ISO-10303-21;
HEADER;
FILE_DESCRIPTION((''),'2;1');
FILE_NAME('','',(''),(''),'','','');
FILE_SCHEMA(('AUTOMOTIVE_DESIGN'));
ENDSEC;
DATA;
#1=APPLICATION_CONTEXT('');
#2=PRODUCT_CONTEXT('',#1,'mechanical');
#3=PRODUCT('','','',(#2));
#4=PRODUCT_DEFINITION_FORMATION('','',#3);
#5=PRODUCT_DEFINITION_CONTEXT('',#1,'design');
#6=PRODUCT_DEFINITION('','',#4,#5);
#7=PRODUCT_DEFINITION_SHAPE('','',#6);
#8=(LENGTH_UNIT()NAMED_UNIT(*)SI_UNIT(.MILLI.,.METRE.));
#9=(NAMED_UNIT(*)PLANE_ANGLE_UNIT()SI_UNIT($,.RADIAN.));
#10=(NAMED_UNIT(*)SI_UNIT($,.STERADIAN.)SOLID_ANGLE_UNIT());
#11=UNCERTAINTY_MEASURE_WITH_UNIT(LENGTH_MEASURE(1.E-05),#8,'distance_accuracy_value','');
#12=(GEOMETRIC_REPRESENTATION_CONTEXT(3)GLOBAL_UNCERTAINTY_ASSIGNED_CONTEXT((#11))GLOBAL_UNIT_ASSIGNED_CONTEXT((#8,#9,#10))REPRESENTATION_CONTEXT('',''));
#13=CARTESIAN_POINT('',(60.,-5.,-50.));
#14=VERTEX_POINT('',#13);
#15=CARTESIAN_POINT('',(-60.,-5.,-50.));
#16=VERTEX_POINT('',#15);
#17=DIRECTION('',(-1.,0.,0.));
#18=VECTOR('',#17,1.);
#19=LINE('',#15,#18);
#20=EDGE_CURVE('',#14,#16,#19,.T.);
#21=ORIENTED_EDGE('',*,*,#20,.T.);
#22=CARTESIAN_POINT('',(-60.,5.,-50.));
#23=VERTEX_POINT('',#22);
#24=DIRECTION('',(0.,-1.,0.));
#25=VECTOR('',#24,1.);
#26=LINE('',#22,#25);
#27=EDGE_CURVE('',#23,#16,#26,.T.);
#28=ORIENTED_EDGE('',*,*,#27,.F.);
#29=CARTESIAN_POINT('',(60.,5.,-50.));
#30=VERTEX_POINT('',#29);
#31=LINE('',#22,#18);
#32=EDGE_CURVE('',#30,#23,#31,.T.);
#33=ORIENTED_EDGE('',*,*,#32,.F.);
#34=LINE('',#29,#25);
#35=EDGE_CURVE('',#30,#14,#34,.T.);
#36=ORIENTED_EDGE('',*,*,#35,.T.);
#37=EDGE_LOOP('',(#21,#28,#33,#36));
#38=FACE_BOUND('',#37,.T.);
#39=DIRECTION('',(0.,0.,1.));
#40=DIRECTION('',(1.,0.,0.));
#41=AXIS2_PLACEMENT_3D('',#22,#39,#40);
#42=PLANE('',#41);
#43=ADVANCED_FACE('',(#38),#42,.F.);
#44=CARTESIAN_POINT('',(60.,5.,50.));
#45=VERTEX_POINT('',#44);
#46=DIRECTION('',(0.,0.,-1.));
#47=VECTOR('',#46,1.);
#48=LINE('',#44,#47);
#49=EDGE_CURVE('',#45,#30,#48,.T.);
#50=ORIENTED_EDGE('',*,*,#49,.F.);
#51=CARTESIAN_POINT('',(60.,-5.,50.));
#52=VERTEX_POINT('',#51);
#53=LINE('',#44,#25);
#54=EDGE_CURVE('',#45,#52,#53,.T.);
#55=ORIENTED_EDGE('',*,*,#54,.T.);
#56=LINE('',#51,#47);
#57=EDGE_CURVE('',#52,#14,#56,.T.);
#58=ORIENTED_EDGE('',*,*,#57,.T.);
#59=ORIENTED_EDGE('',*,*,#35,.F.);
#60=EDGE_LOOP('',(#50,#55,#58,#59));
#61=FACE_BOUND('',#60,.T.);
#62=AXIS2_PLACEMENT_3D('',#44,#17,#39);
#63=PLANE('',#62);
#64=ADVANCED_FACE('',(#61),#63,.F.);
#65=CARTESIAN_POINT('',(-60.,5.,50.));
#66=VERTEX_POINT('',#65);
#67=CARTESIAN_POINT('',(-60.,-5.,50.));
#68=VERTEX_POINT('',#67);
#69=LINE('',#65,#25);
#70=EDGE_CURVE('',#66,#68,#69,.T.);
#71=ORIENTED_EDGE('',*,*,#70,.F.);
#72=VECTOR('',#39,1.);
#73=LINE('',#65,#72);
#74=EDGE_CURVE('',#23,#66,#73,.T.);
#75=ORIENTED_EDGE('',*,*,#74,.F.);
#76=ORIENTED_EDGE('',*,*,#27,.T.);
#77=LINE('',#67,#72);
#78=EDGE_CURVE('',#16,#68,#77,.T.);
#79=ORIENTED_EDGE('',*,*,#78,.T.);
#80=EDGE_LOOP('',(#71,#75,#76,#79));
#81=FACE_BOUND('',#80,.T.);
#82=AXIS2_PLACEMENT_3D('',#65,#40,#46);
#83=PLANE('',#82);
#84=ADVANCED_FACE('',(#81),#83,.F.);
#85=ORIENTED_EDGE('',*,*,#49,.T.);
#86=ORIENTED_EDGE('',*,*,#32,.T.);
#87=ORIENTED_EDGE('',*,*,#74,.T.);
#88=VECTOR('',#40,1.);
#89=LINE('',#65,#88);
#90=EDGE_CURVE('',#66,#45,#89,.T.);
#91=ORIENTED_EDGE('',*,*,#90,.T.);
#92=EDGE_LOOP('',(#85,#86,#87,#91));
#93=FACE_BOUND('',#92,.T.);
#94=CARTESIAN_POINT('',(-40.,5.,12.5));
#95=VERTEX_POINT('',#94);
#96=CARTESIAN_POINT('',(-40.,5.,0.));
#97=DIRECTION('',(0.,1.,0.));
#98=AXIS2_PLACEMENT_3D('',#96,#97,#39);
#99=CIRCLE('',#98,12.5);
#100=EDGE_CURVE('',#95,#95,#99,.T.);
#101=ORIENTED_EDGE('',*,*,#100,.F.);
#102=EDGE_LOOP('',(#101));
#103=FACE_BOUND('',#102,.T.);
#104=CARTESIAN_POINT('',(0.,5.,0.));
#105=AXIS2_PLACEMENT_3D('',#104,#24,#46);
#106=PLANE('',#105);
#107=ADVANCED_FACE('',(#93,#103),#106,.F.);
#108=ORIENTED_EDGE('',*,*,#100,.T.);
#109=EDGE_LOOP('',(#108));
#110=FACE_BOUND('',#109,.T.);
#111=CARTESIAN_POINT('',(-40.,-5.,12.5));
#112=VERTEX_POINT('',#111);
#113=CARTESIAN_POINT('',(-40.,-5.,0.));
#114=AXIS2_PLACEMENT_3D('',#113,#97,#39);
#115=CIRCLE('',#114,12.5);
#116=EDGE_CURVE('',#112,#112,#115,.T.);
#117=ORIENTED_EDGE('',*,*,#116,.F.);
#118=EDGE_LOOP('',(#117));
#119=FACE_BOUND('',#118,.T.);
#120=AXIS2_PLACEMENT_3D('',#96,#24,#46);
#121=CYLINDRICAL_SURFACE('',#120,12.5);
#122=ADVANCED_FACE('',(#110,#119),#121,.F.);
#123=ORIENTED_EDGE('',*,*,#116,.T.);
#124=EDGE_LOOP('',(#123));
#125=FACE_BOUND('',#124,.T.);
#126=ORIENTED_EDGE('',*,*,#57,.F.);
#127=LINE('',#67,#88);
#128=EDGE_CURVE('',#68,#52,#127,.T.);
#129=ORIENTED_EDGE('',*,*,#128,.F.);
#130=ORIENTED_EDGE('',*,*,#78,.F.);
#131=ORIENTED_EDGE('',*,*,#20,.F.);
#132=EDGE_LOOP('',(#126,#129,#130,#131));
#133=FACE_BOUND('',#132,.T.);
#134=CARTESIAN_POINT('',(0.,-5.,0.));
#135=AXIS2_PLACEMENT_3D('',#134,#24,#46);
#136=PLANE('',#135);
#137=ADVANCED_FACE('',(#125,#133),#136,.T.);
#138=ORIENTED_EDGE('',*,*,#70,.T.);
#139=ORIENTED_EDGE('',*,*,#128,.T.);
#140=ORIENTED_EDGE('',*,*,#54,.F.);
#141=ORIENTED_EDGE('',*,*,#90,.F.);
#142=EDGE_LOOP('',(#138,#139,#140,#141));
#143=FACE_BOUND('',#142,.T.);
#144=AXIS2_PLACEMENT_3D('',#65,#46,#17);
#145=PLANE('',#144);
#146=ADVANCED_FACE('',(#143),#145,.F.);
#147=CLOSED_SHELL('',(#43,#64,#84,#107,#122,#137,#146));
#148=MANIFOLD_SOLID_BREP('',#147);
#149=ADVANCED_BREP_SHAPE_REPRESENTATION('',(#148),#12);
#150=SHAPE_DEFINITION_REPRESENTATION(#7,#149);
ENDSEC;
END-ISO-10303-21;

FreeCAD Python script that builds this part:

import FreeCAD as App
import Part
import Sketcher


def add_polygon(sketch, points):
    """Adds a closed chain of lines whose ends are joined by coincident constraints."""
    first, n = sketch.GeometryCount, len(points)
    for a, b in zip(points, points[1:] + points[:1]):
        sketch.addGeometry(Part.LineSegment(App.Vector(*a, 0), App.Vector(*b, 0)), False)
    for i in range(n):
        sketch.addConstraint(Sketcher.Constraint("Coincident", first + i, 2, first + (i + 1) % n, 1))

doc = App.newDocument("Part")
body = doc.addObject("PartDesign::Body", "Body")

# Sketch on XZ plane
sketch1 = body.newObject("Sketcher::SketchObject", "Sketch")
sketch1.AttachmentSupport = (doc.getObject("XZ_Plane"), [""])
sketch1.MapMode = "FlatFace"
add_polygon(sketch1, [(-60, -50), (-60, 50), (60, 50), (60, -50)])  # lines 0-3
sketch1.addGeometry(Part.Circle(App.Vector(-40, 0, 0), App.Vector(0, 0, 1), 12.5), False)  # 4
sketch1.addConstraint([
    Sketcher.Constraint("Vertical", 0),
    Sketcher.Constraint("Horizontal", 1),
    Sketcher.Constraint("Vertical", 2),
    Sketcher.Constraint("Horizontal", 3),
    Sketcher.Constraint("Symmetric", 0, 2, 2, 2, -1, 1),
    Sketcher.Constraint("PointOnObject", 4, 3, -1),
    Sketcher.Constraint("Diameter", 4, 25.0),
    Sketcher.Constraint("DistanceX", 1, 1, 1, 2, 120.0),
    Sketcher.Constraint("DistanceY", 0, 1, 0, 2, 100.0),
    Sketcher.Constraint("DistanceX", 4, 3, -1, 1, 40.0),
])
pad1 = body.newObject("PartDesign::Pad", "Pad")
pad1.Profile = sketch1
pad1.Length = 10
pad1.Midplane = True

doc.recompute()
